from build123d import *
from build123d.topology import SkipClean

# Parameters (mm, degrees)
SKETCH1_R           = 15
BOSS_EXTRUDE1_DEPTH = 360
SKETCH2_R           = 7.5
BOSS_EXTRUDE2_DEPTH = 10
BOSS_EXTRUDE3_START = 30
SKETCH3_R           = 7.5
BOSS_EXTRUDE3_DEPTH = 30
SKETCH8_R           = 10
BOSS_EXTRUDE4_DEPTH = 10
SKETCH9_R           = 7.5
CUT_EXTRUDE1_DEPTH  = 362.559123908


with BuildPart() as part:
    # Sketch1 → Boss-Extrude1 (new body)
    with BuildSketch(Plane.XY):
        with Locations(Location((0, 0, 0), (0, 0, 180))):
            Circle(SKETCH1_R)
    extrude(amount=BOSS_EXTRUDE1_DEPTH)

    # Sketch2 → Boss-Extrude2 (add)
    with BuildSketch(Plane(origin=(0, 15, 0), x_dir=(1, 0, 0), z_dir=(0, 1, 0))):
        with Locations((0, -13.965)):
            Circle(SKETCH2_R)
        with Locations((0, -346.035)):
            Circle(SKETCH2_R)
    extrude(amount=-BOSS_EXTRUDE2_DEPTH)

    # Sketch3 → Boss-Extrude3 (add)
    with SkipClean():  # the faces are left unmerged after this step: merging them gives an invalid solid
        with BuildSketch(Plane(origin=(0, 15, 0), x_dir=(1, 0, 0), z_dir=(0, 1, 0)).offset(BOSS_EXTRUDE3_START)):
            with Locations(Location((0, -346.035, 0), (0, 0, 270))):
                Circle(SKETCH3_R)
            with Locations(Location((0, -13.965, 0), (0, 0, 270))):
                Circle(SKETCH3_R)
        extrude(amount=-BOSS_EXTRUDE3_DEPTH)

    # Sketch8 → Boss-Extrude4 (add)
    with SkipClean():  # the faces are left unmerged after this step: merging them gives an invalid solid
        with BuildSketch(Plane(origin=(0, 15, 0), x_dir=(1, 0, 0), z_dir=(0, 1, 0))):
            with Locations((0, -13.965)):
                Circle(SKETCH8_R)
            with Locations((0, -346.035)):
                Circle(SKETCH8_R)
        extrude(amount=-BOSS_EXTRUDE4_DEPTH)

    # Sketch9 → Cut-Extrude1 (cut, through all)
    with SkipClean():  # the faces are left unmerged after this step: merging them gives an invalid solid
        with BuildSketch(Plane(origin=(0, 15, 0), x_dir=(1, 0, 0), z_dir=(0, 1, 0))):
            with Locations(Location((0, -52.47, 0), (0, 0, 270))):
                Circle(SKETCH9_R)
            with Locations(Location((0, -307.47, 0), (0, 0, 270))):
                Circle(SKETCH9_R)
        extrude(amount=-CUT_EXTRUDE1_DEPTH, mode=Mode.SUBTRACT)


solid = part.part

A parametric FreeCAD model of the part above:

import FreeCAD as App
import Part
import Sketcher
Q = App.Units.Quantity

doc = App.newDocument("Part")
body = doc.addObject("PartDesign::Body", "Body")

sketch1 = doc.addObject("Sketcher::SketchObject", "Sketch")
body.addObject(sketch1)
sketch1.AttachmentSupport = (doc.XY_Plane, [""])
sketch1.MapMode = "FlatFace"
sketch1.addGeometry(Part.Circle(App.Vector(0, 0, 0), App.Vector(0, 0, 1), 15), False)
sketch1.addConstraint(Sketcher.Constraint("Coincident", 0, 3, -1, 1))
sketch1.addConstraint(Sketcher.Constraint("Diameter", 0, Q("30 mm")))
pad1 = doc.addObject("PartDesign::Pad", "Pad")
body.addObject(pad1)
pad1.Profile = sketch1
pad1.Length = 360

sketch2 = doc.addObject("Sketcher::SketchObject", "Sketch001")
body.addObject(sketch2)
sketch2.AttachmentSupport = (doc.XZ_Plane, [""])
sketch2.MapMode = "FlatFace"
sketch2.AttachmentOffset = App.Placement(App.Vector(0, 0, -15), App.Rotation())
sketch2.addGeometry(Part.Circle(App.Vector(0, 14, 0), App.Vector(0, 0, 1), 8), False)
sketch2.addGeometry(Part.Circle(App.Vector(0, 346, 0), App.Vector(0, 0, 1), 8), False)
sketch2.addConstraint(Sketcher.Constraint("Equal", 0, 1))
sketch2.addConstraint(Sketcher.Constraint("PointOnObject", 0, 3, -2))
sketch2.addConstraint(Sketcher.Constraint("PointOnObject", 1, 3, -2))
sketch2.addConstraint(Sketcher.Constraint("Diameter", 0, Q("15 mm")))
sketch2.addConstraint(Sketcher.Constraint("DistanceY", 0, 3, 1, 3, Q("332.07 mm")))
sketch2.addConstraint(Sketcher.Constraint("DistanceY", -1, 1, 0, 3, Q("13.965 mm")))
pad2 = doc.addObject("PartDesign::Pad", "Pad001")
body.addObject(pad2)
pad2.Profile = sketch2
pad2.Length = 10

sketch3 = doc.addObject("Sketcher::SketchObject", "Sketch002")
body.addObject(sketch3)
sketch3.AttachmentSupport = (doc.XZ_Plane, [""])
sketch3.MapMode = "FlatFace"
sketch3.AttachmentOffset = App.Placement(App.Vector(0, 0, -45), App.Rotation())
sketch3.addGeometry(Part.Circle(App.Vector(0, 346, 0), App.Vector(0, 0, 1), 8), False)
sketch3.addGeometry(Part.Circle(App.Vector(0, 14, 0), App.Vector(0, 0, 1), 8), False)
sketch3.addConstraint(Sketcher.Constraint("Equal", 0, 1))
sketch3.addConstraint(Sketcher.Constraint("PointOnObject", 0, 3, -2))
sketch3.addConstraint(Sketcher.Constraint("PointOnObject", 1, 3, -2))
sketch3.addConstraint(Sketcher.Constraint("Diameter", 0, Q("15 mm")))
sketch3.addConstraint(Sketcher.Constraint("DistanceY", 1, 3, 0, 3, Q("332.07 mm")))
sketch3.addConstraint(Sketcher.Constraint("DistanceY", -1, 1, 0, 3, Q("346.035 mm")))
pad3 = doc.addObject("PartDesign::Pad", "Pad002")
body.addObject(pad3)
pad3.Profile = sketch3
pad3.Length = 30

sketch4 = doc.addObject("Sketcher::SketchObject", "Sketch003")
body.addObject(sketch4)
sketch4.AttachmentSupport = (doc.XZ_Plane, [""])
sketch4.MapMode = "FlatFace"
sketch4.AttachmentOffset = App.Placement(App.Vector(0, 0, -15), App.Rotation())
sketch4.addGeometry(Part.Circle(App.Vector(0, 14, 0), App.Vector(0, 0, 1), 10), False)
sketch4.addGeometry(Part.Circle(App.Vector(0, 346, 0), App.Vector(0, 0, 1), 10), False)
sketch4.addConstraint(Sketcher.Constraint("Equal", 0, 1))
sketch4.addConstraint(Sketcher.Constraint("PointOnObject", 0, 3, -2))
sketch4.addConstraint(Sketcher.Constraint("PointOnObject", 1, 3, -2))
sketch4.addConstraint(Sketcher.Constraint("Diameter", 0, Q("20 mm")))
sketch4.addConstraint(Sketcher.Constraint("DistanceY", 0, 3, 1, 3, Q("332.07 mm")))
sketch4.addConstraint(Sketcher.Constraint("DistanceY", -1, 1, 0, 3, Q("13.965 mm")))
pad4 = doc.addObject("PartDesign::Pad", "Pad003")
body.addObject(pad4)
pad4.Profile = sketch4
pad4.Length = 10

sketch5 = doc.addObject("Sketcher::SketchObject", "Sketch004")
body.addObject(sketch5)
sketch5.AttachmentSupport = (doc.XZ_Plane, [""])
sketch5.MapMode = "FlatFace"
sketch5.AttachmentOffset = App.Placement(App.Vector(0, 0, -15), App.Rotation())
sketch5.addGeometry(Part.Circle(App.Vector(0, 52, 0), App.Vector(0, 0, 1), 8), False)
sketch5.addGeometry(Part.Circle(App.Vector(0, 307, 0), App.Vector(0, 0, 1), 8), False)
sketch5.addConstraint(Sketcher.Constraint("Equal", 0, 1))
sketch5.addConstraint(Sketcher.Constraint("PointOnObject", 0, 3, -2))
sketch5.addConstraint(Sketcher.Constraint("PointOnObject", 1, 3, -2))
sketch5.addConstraint(Sketcher.Constraint("Diameter", 0, Q("15 mm")))
sketch5.addConstraint(Sketcher.Constraint("DistanceY", 0, 3, 1, 3, Q("255 mm")))
sketch5.addConstraint(Sketcher.Constraint("DistanceY", -1, 1, 0, 3, Q("52.47 mm")))
pocket1 = doc.addObject("PartDesign::Pocket", "Pocket")
body.addObject(pocket1)
pocket1.Profile = sketch5
pocket1.Type = "ThroughAll"
pocket1.Reversed = True

doc.recompute()
